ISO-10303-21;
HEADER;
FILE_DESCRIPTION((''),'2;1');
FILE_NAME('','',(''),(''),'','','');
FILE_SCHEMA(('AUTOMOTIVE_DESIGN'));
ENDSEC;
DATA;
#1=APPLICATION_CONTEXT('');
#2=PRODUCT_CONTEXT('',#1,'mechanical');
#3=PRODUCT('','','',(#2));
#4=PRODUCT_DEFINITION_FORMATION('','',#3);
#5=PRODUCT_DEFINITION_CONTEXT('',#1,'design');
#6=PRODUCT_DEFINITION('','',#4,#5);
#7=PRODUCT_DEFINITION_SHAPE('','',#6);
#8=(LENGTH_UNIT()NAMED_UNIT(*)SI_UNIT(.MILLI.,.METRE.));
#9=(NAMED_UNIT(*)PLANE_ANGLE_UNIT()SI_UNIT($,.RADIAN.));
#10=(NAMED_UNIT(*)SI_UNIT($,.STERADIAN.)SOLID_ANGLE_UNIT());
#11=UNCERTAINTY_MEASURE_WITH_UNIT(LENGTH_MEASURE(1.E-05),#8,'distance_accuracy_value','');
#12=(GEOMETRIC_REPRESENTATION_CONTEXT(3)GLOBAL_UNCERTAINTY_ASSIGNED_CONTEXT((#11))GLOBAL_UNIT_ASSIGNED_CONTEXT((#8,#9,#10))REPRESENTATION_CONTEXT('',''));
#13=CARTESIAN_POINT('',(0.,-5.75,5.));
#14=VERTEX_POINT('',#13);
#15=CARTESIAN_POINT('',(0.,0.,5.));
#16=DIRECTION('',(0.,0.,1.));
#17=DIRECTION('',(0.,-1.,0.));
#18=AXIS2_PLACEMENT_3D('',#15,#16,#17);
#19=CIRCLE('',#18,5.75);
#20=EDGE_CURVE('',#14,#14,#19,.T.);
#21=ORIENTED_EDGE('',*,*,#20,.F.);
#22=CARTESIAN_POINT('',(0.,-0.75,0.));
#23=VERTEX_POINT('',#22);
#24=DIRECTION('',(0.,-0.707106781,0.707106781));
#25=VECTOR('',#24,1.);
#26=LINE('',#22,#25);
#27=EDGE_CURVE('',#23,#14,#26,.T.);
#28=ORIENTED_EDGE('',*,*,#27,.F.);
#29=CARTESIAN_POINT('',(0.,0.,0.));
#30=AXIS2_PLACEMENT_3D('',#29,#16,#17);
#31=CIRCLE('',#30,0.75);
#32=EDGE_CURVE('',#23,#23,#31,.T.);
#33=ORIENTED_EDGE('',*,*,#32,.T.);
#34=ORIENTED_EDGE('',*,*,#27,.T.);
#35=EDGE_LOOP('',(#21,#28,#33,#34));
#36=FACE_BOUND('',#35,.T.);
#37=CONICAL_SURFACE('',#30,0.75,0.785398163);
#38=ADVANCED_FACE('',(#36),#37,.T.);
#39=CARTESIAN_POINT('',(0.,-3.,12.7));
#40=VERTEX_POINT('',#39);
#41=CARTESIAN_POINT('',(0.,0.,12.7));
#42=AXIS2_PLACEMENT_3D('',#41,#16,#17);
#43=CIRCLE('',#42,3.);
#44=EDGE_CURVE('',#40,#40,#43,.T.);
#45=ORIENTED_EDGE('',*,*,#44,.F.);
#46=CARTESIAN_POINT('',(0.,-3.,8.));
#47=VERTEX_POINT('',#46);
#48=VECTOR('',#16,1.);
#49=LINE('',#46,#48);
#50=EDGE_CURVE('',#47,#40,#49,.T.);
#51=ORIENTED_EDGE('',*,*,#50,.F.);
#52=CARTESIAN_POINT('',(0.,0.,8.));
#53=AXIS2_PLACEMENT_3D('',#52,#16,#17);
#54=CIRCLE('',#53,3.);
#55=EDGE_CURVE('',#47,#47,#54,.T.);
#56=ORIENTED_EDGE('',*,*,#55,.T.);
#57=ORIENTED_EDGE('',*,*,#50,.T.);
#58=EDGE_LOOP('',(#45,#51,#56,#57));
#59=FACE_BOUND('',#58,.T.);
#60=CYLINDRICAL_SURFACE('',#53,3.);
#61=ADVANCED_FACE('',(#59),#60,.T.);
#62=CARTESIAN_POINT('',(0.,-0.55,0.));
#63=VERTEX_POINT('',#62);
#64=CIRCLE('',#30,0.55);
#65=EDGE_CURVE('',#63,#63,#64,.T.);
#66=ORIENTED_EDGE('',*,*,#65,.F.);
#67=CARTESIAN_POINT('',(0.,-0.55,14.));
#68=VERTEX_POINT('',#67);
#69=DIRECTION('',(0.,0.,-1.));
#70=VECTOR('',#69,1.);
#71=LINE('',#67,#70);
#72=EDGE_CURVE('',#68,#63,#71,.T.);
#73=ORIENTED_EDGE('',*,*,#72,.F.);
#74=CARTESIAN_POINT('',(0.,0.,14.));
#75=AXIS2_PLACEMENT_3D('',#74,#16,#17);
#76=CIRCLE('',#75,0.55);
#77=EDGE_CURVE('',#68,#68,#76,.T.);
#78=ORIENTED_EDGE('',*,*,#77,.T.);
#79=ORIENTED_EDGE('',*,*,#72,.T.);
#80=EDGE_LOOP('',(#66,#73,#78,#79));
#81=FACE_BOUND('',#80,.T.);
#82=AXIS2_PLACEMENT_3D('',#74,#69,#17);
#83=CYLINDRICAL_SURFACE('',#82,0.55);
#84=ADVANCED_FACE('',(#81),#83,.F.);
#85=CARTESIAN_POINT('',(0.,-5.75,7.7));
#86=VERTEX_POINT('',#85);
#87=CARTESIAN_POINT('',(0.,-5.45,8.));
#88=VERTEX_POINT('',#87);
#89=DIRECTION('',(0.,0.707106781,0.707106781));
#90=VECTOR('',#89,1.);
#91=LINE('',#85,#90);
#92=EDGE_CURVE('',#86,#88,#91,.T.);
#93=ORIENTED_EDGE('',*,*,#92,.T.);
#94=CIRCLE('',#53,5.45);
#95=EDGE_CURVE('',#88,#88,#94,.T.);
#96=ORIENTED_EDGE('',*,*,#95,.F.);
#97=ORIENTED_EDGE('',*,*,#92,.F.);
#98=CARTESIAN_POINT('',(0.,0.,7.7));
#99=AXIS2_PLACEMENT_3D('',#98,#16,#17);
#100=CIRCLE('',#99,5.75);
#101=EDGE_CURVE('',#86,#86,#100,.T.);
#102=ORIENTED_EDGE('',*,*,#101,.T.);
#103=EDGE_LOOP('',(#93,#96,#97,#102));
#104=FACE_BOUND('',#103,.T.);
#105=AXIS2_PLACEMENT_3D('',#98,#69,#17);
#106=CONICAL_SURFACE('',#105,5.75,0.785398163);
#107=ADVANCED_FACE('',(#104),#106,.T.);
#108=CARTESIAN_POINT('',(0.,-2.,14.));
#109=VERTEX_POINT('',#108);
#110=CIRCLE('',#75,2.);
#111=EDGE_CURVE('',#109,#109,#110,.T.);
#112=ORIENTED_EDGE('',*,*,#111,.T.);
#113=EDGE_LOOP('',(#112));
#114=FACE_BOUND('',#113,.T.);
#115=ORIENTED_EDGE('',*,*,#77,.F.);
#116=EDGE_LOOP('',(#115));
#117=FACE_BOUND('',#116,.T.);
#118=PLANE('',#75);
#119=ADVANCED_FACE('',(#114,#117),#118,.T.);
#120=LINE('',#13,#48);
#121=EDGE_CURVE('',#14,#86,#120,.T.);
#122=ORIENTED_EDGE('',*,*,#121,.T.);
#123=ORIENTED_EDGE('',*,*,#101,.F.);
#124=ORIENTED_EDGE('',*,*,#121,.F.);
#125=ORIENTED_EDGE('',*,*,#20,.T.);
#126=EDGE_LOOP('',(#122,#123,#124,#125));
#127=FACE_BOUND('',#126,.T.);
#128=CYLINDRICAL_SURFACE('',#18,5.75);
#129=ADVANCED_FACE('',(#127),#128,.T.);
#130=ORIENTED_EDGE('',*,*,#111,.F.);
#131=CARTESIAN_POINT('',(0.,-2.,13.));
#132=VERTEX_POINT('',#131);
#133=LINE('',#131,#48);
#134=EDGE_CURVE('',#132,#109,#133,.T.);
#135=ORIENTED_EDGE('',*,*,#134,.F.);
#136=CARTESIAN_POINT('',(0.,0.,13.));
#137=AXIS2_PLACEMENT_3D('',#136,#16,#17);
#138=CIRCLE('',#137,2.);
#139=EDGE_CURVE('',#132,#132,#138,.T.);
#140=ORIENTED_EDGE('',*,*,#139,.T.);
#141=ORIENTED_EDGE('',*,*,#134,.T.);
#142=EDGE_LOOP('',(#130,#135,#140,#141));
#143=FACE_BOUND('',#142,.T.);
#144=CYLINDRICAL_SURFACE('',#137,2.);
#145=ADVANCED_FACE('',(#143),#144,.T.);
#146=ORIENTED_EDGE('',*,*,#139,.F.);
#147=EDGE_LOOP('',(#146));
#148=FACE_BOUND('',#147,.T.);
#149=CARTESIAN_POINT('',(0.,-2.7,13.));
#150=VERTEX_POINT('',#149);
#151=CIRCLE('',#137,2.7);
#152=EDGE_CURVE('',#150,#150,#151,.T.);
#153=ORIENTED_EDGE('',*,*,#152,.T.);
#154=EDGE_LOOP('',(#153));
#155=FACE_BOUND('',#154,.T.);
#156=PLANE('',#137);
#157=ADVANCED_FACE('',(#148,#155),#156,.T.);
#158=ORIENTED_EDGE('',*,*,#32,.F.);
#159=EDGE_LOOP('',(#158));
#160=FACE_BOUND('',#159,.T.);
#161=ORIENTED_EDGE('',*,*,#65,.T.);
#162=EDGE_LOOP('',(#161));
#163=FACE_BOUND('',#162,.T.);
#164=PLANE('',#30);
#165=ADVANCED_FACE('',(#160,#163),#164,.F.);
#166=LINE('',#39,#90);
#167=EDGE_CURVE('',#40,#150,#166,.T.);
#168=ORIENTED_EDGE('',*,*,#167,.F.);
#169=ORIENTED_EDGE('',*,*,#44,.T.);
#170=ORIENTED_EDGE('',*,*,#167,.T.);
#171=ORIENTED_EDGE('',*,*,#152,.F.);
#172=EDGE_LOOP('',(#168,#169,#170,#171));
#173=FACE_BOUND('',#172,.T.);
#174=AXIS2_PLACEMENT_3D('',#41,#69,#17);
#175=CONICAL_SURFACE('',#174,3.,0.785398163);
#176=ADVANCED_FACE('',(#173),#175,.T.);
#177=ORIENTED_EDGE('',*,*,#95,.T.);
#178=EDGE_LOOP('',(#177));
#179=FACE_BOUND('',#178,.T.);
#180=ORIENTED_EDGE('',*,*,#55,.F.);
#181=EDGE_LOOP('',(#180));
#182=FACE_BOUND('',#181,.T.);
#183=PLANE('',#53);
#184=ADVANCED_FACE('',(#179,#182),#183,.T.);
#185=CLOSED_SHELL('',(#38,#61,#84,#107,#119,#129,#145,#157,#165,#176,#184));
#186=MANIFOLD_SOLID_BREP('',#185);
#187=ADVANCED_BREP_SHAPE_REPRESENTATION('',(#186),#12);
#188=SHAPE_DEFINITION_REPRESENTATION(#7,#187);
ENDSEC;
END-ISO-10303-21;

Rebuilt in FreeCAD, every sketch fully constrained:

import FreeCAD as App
import Part
import Sketcher
Q = App.Units.Quantity


def edges_at(feature, points):
    """Names of the edges that pass closest to the given points."""
    edges = feature.Shape.Edges
    near = lambda p: min(range(len(edges)), key=lambda i: edges[i].distToShape(Part.Vertex(*p))[0])
    return sorted({f"Edge{near(p) + 1}" for p in points})

doc = App.newDocument("Part")
params = doc.addObject("Spreadsheet::Sheet", "Params")
for row, (alias, value) in enumerate([
    ("sketch1_width", "1 mm"),
    ("sketch1_height", "3 mm"),
    ("sketch1_height2", "14 mm"),
    ("sketch1_width2", "0.2 mm"),
    ("sketch1_width3", "1.45 mm"),
    ("revolution_angle", "360 deg"),
    ("chamfer_size", "0.3 mm"),
], start=1):
    params.set(f"A{row}", alias)
    params.set(f"B{row}", "=" + value)
    params.setAlias(f"B{row}", alias)

body = doc.addObject("PartDesign::Body", "Body")

sketch1 = body.newObject("Sketcher::SketchObject", "Sketch")
sketch1.AttachmentSupport = (doc.getObject("YZ_Plane"), [""])
sketch1.MapMode = "FlatFace"
sketch1.addGeometry(Part.LineSegment(App.Vector(-0.75, 0, 0), App.Vector(-0.55, 0, 0)), False)
sketch1.addGeometry(Part.LineSegment(App.Vector(-0.55, 0, 0), App.Vector(-0.55, 14, 0)), False)
sketch1.addGeometry(Part.LineSegment(App.Vector(-0.55, 14, 0), App.Vector(-2, 14, 0)), False)
sketch1.addGeometry(Part.LineSegment(App.Vector(-2, 14, 0), App.Vector(-2, 13, 0)), False)
sketch1.addGeometry(Part.LineSegment(App.Vector(-2, 13, 0), App.Vector(-3, 13, 0)), False)
sketch1.addGeometry(Part.LineSegment(App.Vector(-3, 13, 0), App.Vector(-3, 8, 0)), False)
sketch1.addGeometry(Part.LineSegment(App.Vector(-3, 8, 0), App.Vector(-5.75, 8, 0)), False)
sketch1.addGeometry(Part.LineSegment(App.Vector(-5.75, 8, 0), App.Vector(-5.75, 5, 0)), False)
sketch1.addGeometry(Part.LineSegment(App.Vector(-5.75, 5, 0), App.Vector(-0.75, 0, 0)), False)
sketch1.addConstraint(Sketcher.Constraint("Coincident", 0, 2, 1, 1))
sketch1.addConstraint(Sketcher.Constraint("Coincident", 1, 2, 2, 1))
sketch1.addConstraint(Sketcher.Constraint("Coincident", 2, 2, 3, 1))
sketch1.addConstraint(Sketcher.Constraint("Coincident", 3, 2, 4, 1))
sketch1.addConstraint(Sketcher.Constraint("Coincident", 4, 2, 5, 1))
sketch1.addConstraint(Sketcher.Constraint("Coincident", 5, 2, 6, 1))
sketch1.addConstraint(Sketcher.Constraint("Coincident", 6, 2, 7, 1))
sketch1.addConstraint(Sketcher.Constraint("Coincident", 7, 2, 8, 1))
sketch1.addConstraint(Sketcher.Constraint("Coincident", 8, 2, 0, 1))
sketch1.addConstraint(Sketcher.Constraint("Horizontal", 0))
sketch1.addConstraint(Sketcher.Constraint("Vertical", 1))
sketch1.addConstraint(Sketcher.Constraint("Horizontal", 2))
sketch1.addConstraint(Sketcher.Constraint("Vertical", 3))
sketch1.addConstraint(Sketcher.Constraint("Horizontal", 4))
sketch1.addConstraint(Sketcher.Constraint("Vertical", 5))
sketch1.addConstraint(Sketcher.Constraint("Horizontal", 6))
sketch1.addConstraint(Sketcher.Constraint("Vertical", 7))
sketch1.addConstraint(Sketcher.Constraint("PointOnObject", 0, 2, -1))
sketch1.addConstraint(Sketcher.Constraint("Equal", 4, 3))
sketch1.addConstraint(Sketcher.Constraint("DistanceX", 4, 2, 4, 1, Q("1 mm")))
sketch1.addConstraint(Sketcher.Constraint("DistanceY", 7, 2, 7, 1, Q("3 mm")))
sketch1.addConstraint(Sketcher.Constraint("Angle", 8, Q("-45 deg")))
sketch1.addConstraint(Sketcher.Constraint("DistanceX", 4, 2, -1, 1, Q("3 mm")))
sketch1.addConstraint(Sketcher.Constraint("DistanceY", 5, 2, 2, 2, Q("6 mm")))
sketch1.addConstraint(Sketcher.Constraint("DistanceY", 1, 1, 1, 2, Q("14 mm")))
sketch1.addConstraint(Sketcher.Constraint("DistanceX", 0, 1, 0, 2, Q("0.2 mm")))
sketch1.addConstraint(Sketcher.Constraint("DistanceX", 2, 2, 2, 1, Q("1.45 mm")))
sketch1.setExpression("Constraints[19]", "Params.sketch1_width")
sketch1.setExpression("Constraints[20]", "Params.sketch1_height")
sketch1.setExpression("Constraints[24]", "Params.sketch1_height2")
sketch1.setExpression("Constraints[25]", "Params.sketch1_width2")
sketch1.setExpression("Constraints[26]", "Params.sketch1_width3")
revolution = body.newObject("PartDesign::Revolution", "Revolution")
revolution.Profile = sketch1
revolution.ReferenceAxis = (sketch1, ["V_Axis"])
revolution.setExpression("Angle", "Params.revolution_angle")
doc.recompute()

chamfer = body.newObject("PartDesign::Chamfer", "Chamfer")
chamfer.Base = (revolution, edges_at(revolution, [(0, 3, 13), (0, 5.75, 8)]))
chamfer.setExpression("Size", "Params.chamfer_size")

doc.recompute()
